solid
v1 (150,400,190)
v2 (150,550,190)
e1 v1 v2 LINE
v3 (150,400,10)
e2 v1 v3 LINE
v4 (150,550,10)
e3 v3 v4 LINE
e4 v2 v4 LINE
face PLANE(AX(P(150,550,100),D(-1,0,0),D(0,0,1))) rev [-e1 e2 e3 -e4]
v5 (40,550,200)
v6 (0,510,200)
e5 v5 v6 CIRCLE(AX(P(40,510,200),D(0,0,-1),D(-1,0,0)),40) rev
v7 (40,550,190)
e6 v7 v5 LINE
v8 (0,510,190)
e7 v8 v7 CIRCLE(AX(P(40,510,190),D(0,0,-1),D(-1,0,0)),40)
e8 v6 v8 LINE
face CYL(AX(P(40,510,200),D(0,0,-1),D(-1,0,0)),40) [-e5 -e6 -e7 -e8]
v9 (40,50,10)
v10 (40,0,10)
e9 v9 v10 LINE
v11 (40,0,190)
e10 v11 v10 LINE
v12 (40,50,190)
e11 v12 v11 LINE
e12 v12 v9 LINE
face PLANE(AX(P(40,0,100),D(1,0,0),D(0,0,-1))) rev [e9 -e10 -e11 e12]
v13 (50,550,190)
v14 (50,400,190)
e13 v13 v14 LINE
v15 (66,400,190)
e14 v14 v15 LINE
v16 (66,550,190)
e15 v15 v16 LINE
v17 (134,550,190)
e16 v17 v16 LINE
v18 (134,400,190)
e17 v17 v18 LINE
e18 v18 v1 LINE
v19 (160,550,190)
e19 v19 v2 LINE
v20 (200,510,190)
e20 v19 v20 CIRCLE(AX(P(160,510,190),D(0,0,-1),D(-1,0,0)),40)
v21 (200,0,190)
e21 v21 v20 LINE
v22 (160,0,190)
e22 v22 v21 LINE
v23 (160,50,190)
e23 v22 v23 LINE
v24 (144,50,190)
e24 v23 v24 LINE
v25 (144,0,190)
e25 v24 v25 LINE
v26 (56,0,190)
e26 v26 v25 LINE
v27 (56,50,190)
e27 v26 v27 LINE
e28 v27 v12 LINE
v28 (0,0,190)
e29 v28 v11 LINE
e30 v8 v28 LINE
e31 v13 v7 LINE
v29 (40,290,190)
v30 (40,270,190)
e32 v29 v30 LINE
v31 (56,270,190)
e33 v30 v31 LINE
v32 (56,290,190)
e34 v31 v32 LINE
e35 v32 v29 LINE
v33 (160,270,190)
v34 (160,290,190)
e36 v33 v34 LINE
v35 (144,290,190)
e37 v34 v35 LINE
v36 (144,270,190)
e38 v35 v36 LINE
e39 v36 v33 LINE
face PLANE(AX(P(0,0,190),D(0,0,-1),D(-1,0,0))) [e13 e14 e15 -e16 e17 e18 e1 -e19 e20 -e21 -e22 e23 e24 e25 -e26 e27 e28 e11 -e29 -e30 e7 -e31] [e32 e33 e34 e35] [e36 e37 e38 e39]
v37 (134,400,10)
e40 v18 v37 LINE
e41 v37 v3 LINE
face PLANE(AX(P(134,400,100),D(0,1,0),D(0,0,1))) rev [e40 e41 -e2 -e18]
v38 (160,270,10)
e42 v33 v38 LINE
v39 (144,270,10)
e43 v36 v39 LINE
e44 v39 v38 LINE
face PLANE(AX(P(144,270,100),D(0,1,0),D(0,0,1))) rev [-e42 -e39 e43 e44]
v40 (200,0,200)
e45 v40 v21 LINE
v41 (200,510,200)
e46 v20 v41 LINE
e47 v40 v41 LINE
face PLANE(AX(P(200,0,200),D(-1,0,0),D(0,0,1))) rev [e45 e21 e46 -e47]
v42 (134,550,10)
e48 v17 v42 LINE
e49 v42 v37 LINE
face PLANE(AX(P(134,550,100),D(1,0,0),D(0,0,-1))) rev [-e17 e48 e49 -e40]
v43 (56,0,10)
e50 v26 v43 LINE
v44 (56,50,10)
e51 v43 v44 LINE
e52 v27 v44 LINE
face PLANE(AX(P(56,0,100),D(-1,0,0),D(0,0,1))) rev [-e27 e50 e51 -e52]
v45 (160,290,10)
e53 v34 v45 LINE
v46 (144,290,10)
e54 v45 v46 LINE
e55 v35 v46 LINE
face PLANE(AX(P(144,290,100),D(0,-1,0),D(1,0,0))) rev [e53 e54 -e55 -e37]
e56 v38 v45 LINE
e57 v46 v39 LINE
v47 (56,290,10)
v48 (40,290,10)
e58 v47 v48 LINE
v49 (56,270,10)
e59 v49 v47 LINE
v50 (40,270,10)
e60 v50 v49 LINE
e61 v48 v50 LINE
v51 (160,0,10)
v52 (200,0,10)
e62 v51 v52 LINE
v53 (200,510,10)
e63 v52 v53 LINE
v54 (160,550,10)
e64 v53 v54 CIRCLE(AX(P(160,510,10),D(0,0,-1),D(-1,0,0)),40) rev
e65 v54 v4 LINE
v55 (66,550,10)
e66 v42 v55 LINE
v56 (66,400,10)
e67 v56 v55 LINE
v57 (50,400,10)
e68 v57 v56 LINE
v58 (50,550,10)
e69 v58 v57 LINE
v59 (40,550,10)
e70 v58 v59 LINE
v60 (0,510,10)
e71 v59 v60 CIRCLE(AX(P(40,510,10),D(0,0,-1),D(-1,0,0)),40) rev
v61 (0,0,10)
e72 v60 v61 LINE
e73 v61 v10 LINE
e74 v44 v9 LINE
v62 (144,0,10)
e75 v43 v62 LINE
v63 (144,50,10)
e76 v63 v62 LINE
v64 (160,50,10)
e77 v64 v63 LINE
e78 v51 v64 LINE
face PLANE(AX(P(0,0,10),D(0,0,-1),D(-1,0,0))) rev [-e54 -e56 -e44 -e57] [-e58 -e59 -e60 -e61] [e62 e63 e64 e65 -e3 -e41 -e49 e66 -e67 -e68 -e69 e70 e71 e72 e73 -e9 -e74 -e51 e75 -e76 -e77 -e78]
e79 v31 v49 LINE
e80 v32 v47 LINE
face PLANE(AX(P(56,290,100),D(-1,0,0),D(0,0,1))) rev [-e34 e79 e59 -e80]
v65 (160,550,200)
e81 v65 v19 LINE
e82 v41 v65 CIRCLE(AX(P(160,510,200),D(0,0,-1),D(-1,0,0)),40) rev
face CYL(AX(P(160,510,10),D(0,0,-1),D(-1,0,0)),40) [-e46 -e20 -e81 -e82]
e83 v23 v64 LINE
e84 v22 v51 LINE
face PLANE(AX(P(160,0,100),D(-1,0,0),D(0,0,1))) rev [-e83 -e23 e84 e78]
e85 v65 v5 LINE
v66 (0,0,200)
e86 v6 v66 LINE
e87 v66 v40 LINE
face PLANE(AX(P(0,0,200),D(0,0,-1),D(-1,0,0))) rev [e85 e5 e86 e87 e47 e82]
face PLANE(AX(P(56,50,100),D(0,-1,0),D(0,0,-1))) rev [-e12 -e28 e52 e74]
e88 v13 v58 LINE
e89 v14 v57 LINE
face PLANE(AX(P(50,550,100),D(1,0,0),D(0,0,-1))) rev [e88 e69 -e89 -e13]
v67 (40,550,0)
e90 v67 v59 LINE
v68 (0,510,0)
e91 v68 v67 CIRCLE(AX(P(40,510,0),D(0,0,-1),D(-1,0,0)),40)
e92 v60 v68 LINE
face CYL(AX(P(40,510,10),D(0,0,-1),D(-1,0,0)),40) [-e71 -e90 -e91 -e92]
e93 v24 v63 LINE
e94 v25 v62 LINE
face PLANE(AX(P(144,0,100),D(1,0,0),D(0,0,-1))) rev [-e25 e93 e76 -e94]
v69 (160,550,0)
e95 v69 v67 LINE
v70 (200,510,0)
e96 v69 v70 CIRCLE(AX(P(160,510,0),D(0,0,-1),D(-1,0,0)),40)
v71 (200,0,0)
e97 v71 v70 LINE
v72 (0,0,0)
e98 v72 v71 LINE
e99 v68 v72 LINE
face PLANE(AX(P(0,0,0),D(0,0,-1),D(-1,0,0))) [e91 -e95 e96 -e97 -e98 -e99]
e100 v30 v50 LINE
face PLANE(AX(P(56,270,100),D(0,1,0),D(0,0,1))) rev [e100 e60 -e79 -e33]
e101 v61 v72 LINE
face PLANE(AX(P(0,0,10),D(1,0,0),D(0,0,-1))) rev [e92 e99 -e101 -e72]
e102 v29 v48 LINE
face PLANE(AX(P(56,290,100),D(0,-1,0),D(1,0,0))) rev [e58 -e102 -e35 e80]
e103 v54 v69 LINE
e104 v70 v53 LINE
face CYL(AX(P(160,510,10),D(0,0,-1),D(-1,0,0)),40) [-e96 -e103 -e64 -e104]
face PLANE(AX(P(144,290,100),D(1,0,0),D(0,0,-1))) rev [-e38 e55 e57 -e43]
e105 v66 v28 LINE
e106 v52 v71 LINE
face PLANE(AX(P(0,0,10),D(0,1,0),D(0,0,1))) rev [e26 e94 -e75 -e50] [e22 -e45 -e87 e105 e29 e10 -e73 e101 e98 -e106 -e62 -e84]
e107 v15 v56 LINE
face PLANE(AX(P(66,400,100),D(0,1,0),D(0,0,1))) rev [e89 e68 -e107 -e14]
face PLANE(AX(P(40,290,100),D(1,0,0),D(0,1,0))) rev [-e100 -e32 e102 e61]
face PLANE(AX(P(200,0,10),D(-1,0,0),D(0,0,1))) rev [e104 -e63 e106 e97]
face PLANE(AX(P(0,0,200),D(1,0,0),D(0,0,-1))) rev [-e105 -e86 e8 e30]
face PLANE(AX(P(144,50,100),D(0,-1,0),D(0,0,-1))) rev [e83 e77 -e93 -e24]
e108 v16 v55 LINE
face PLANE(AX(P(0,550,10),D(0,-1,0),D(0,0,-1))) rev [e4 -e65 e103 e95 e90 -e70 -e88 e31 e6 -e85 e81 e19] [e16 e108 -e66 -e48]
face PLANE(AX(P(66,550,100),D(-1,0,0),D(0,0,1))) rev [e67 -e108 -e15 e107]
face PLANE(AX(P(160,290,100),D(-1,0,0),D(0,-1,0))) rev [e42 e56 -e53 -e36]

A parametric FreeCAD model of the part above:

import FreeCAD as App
import Part
import Sketcher

V = App.Vector
Q = App.Units.Quantity


def edges_at(feature, points):
    """Names of the edges that pass closest to the given points."""
    edges = feature.Shape.Edges
    near = lambda p: min(range(len(edges)), key=lambda i: edges[i].distToShape(Part.Vertex(*p))[0])
    return sorted({f"Edge{near(p) + 1}" for p in points})


def add_polygon(sketch, points):
    """Adds a closed chain of lines whose ends are joined by coincident constraints."""
    first, n = sketch.GeometryCount, len(points)
    for a, b in zip(points, points[1:] + points[:1]):
        sketch.addGeometry(Part.LineSegment(App.Vector(*a, 0), App.Vector(*b, 0)), False)
    for i in range(n):
        sketch.addConstraint(Sketcher.Constraint("Coincident", first + i, 2, first + (i + 1) % n, 1))

doc = App.newDocument("Part")
body = doc.addObject("PartDesign::Body", "Body")

sketch1 = body.newObject("Sketcher::SketchObject", "Sketch")
sketch1.AttachmentSupport = (doc.getObject("XY_Plane"), [""])
sketch1.MapMode = "FlatFace"
add_polygon(sketch1, [(0, 550), (0, 0), (200, 0), (200, 550)])
sketch1.addConstraint([
    Sketcher.Constraint("Vertical", 0),
    Sketcher.Constraint("Horizontal", 1),
    Sketcher.Constraint("Vertical", 2),
    Sketcher.Constraint("Horizontal", 3),
    Sketcher.Constraint("Coincident", 0, 2, -1, 1),
    Sketcher.Constraint("DistanceX", 1, 1, 1, 2, Q("200 mm")),
    Sketcher.Constraint("DistanceY", 0, 2, 0, 1, Q("550 mm")),
])
pad1 = body.newObject("PartDesign::Pad", "Pad")
pad1.Profile = sketch1
pad1.Length = 10
doc.recompute()

fillet = body.newObject("PartDesign::Fillet", "Fillet")
fillet.Base = (pad1, edges_at(pad1, [(0, 550, 5), (200, 550, 5)]))
fillet.Radius = 40

sketch2 = body.newObject("Sketcher::SketchObject", "Sketch001")
sketch2.AttachmentSupport = (doc.getObject("XY_Plane"), [""])
sketch2.MapMode = "FlatFace"
sketch2.AttachmentOffset = App.Placement(V(0, 0, 10), App.Rotation())
add_polygon(sketch2, [(144, 50), (144, 0), (160, 0), (160, 50)])
add_polygon(sketch2, [(144, 290), (144, 270), (160, 270), (160, 290)])
add_polygon(sketch2, [(134, 550), (134, 400), (150, 400), (150, 550)])
add_polygon(sketch2, [(40, 50), (40, 0), (56, 0), (56, 50)])
add_polygon(sketch2, [(40, 290), (40, 270), (56, 270), (56, 290)])
add_polygon(sketch2, [(50, 550), (50, 400), (66, 400), (66, 550)])
sketch2.addConstraint([
    Sketcher.Constraint("Vertical", 0),
    Sketcher.Constraint("Horizontal", 1),
    Sketcher.Constraint("Vertical", 2),
    Sketcher.Constraint("Horizontal", 3),
    Sketcher.Constraint("Vertical", 4),
    Sketcher.Constraint("Horizontal", 5),
    Sketcher.Constraint("Vertical", 6),
    Sketcher.Constraint("Horizontal", 7),
    Sketcher.Constraint("Vertical", 8),
    Sketcher.Constraint("Horizontal", 9),
    Sketcher.Constraint("Vertical", 10),
    Sketcher.Constraint("Horizontal", 11),
    Sketcher.Constraint("Vertical", 12),
    Sketcher.Constraint("Horizontal", 13),
    Sketcher.Constraint("Vertical", 14),
    Sketcher.Constraint("Horizontal", 15),
    Sketcher.Constraint("Vertical", 16),
    Sketcher.Constraint("Horizontal", 17),
    Sketcher.Constraint("Vertical", 18),
    Sketcher.Constraint("Horizontal", 19),
    Sketcher.Constraint("Vertical", 20),
    Sketcher.Constraint("Horizontal", 21),
    Sketcher.Constraint("Vertical", 22),
    Sketcher.Constraint("Horizontal", 23),
    Sketcher.Constraint("PointOnObject", 0, 2, -1),
    Sketcher.Constraint("PointOnObject", 12, 2, -1),
    Sketcher.Constraint("Horizontal", 3, 2, 14, 2),
    Sketcher.Constraint("Horizontal", 5, 2, 16, 2),
    Sketcher.Constraint("Horizontal", 7, 2, 18, 2),
    Sketcher.Constraint("Horizontal", 9, 2, 20, 2),
    Sketcher.Constraint("Horizontal", 11, 2, 22, 2),
    Sketcher.Constraint("Vertical", 3, 2, 4, 2),
    Sketcher.Constraint("Vertical", 2, 2, 5, 2),
    Sketcher.Constraint("Vertical", 15, 2, 16, 2),
    Sketcher.Constraint("Vertical", 14, 2, 17, 2),
    Sketcher.Constraint("Equal", 7, 9),
    Sketcher.Constraint("Equal", 11, 13),
    Sketcher.Constraint("Equal", 19, 21),
    Sketcher.Constraint("DistanceX", 1, 1, 1, 2, Q("16 mm")),
    Sketcher.Constraint("DistanceY", 0, 2, 0, 1, Q("50 mm")),
    Sketcher.Constraint("DistanceY", 4, 2, 4, 1, Q("20 mm")),
    Sketcher.Constraint("DistanceY", 8, 2, 8, 1, Q("150 mm")),
    Sketcher.Constraint("DistanceX", -1, 1, 0, 2, Q("144 mm")),
    Sketcher.Constraint("DistanceY", -1, 1, 4, 2, Q("270 mm")),
    Sketcher.Constraint("DistanceX", -1, 1, 8, 2, Q("134 mm")),
    Sketcher.Constraint("DistanceY", -1, 1, 8, 2, Q("400 mm")),
    Sketcher.Constraint("DistanceX", -1, 1, 12, 2, Q("40 mm")),
    Sketcher.Constraint("DistanceX", -1, 1, 20, 2, Q("50 mm")),
])
pad2 = body.newObject("PartDesign::Pad", "Pad001")
pad2.Profile = sketch2
pad2.Length = 90
doc.recompute()

datumplane = body.newObject("PartDesign::Plane", "DatumPlane")
datumplane.AttachmentSupport = (doc.getObject("XY_Plane"), [""])
datumplane.MapMode = "FlatFace"
datumplane.AttachmentOffset = App.Placement(V(0, 0, 100), App.Rotation())
mirrored = body.newObject("PartDesign::Mirrored", "Mirrored")
mirrored.Originals = [pad2]
mirrored.MirrorPlane = (datumplane, [""])
body.Tip = mirrored

sketch3 = body.newObject("Sketcher::SketchObject", "Sketch002")
sketch3.AttachmentSupport = (doc.getObject("XY_Plane"), [""])
sketch3.MapMode = "FlatFace"
sketch3.AttachmentOffset = App.Placement(V(0, 0, 190), App.Rotation())
add_polygon(sketch3, [(0, 550), (0, 0), (200, 0), (200, 550)])
sketch3.addConstraint([
    Sketcher.Constraint("Vertical", 0),
    Sketcher.Constraint("Horizontal", 1),
    Sketcher.Constraint("Vertical", 2),
    Sketcher.Constraint("Horizontal", 3),
    Sketcher.Constraint("Coincident", 0, 2, -1, 1),
    Sketcher.Constraint("DistanceX", 1, 1, 1, 2, Q("200 mm")),
    Sketcher.Constraint("DistanceY", 0, 2, 0, 1, Q("550 mm")),
])
pad3 = body.newObject("PartDesign::Pad", "Pad002")
pad3.Profile = sketch3
pad3.Length = 10
doc.recompute()

fillet2 = body.newObject("PartDesign::Fillet", "Fillet001")
fillet2.Base = (pad3, edges_at(pad3, [(0, 550, 195), (200, 550, 195)]))
fillet2.Radius = 40

doc.recompute()
